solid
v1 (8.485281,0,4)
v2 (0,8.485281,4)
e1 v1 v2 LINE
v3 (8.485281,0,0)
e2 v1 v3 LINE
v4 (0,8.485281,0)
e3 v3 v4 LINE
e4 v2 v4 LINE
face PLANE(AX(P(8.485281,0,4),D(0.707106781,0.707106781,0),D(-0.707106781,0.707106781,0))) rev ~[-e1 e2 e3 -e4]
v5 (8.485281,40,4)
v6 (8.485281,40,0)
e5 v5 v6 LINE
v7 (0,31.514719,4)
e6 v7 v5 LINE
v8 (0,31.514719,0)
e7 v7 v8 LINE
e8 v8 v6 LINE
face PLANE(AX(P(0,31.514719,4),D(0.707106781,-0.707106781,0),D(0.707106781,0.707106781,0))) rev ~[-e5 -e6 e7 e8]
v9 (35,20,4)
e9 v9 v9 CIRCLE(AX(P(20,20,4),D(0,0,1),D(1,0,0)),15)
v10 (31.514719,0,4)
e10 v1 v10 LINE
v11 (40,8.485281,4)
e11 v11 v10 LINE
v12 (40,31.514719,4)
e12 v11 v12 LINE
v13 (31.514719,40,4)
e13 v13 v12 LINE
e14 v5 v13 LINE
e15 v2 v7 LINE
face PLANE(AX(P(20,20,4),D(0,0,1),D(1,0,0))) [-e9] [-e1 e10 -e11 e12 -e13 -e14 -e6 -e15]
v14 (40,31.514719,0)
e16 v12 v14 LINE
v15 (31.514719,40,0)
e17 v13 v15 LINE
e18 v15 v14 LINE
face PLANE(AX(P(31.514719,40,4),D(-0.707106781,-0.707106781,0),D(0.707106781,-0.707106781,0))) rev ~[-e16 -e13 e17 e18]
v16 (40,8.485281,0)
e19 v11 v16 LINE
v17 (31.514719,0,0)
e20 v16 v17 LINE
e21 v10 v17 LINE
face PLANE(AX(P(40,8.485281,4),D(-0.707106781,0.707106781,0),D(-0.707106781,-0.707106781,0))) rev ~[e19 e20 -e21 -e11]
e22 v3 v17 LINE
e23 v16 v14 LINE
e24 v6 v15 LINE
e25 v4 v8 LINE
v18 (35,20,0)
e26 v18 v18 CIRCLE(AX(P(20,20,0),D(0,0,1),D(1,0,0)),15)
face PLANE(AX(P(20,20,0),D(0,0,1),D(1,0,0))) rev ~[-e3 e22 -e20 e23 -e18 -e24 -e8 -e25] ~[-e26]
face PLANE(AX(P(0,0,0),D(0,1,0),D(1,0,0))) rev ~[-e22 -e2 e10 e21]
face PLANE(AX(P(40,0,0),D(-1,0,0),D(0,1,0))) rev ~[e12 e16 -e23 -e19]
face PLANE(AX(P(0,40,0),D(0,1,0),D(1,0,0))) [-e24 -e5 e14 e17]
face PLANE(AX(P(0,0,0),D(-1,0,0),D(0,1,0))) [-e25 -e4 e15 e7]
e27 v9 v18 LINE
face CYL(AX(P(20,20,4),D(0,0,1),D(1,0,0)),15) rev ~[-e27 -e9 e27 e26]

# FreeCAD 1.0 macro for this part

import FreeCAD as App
import Part
import Sketcher
from FreeCAD import Vector
Q = App.Units.Quantity

doc = App.newDocument("Part")
body = doc.addObject("PartDesign::Body", "Body")

sketch1 = body.newObject("Sketcher::SketchObject", "Sketch")
sketch1.AttachmentSupport = (doc.getObject("XY_Plane"), [""])
sketch1.MapMode = "FlatFace"
sketch1.addGeometry([
    Part.LineSegment(Vector(0, 40, 0), Vector(0, 0, 0)),
    Part.LineSegment(Vector(0, 0, 0), Vector(40, 0, 0)),
    Part.LineSegment(Vector(40, 0, 0), Vector(40, 40, 0)),
    Part.LineSegment(Vector(40, 40, 0), Vector(0, 40, 0)),
], False)
sketch1.addConstraint([
    Sketcher.Constraint("Coincident", 0, 2, 1, 1),
    Sketcher.Constraint("Coincident", 1, 2, 2, 1),
    Sketcher.Constraint("Coincident", 2, 2, 3, 1),
    Sketcher.Constraint("Coincident", 3, 2, 0, 1),
    Sketcher.Constraint("Vertical", 0),
    Sketcher.Constraint("Horizontal", 1),
    Sketcher.Constraint("Vertical", 2),
    Sketcher.Constraint("Horizontal", 3),
    Sketcher.Constraint("Coincident", 0, 2, -1, 1),
    Sketcher.Constraint("Equal", 3, 0),
    Sketcher.Constraint("DistanceX", 1, 1, 1, 2, Q("40 mm")),
])
pad1 = body.newObject("PartDesign::Pad", "Pad")
pad1.Profile = sketch1
pad1.Length = 4

sketch2 = body.newObject("Sketcher::SketchObject", "Sketch001")
sketch2.AttachmentSupport = (doc.getObject("XY_Plane"), [""])
sketch2.MapMode = "FlatFace"
sketch2.AttachmentOffset = App.Placement(Vector(0, 0, 4), App.Rotation())
sketch2.addGeometry([
    Part.LineSegment(Vector(0, 40, 0), Vector(0, 32, 0)),
    Part.LineSegment(Vector(0, 32, 0), Vector(8, 40, 0)),
    Part.LineSegment(Vector(8, 40, 0), Vector(0, 40, 0)),
    Part.LineSegment(Vector(40, 40, 0), Vector(32, 40, 0)),
    Part.LineSegment(Vector(32, 40, 0), Vector(40, 32, 0)),
    Part.LineSegment(Vector(40, 32, 0), Vector(40, 40, 0)),
    Part.LineSegment(Vector(40, 8, 0), Vector(32, 0, 0)),
    Part.LineSegment(Vector(32, 0, 0), Vector(40, 0, 0)),
    Part.LineSegment(Vector(40, 0, 0), Vector(40, 8, 0)),
    Part.LineSegment(Vector(8, 0, 0), Vector(0, 8, 0)),
    Part.LineSegment(Vector(0, 8, 0), Vector(0, 0, 0)),
    Part.LineSegment(Vector(0, 0, 0), Vector(8, 0, 0)),
], False)
sketch2.addConstraint([
    Sketcher.Constraint("Coincident", 0, 2, 1, 1),
    Sketcher.Constraint("Coincident", 1, 2, 2, 1),
    Sketcher.Constraint("Coincident", 2, 2, 0, 1),
    Sketcher.Constraint("Coincident", 3, 2, 4, 1),
    Sketcher.Constraint("Coincident", 4, 2, 5, 1),
    Sketcher.Constraint("Coincident", 5, 2, 3, 1),
    Sketcher.Constraint("Coincident", 6, 2, 7, 1),
    Sketcher.Constraint("Coincident", 7, 2, 8, 1),
    Sketcher.Constraint("Coincident", 8, 2, 6, 1),
    Sketcher.Constraint("Coincident", 9, 2, 10, 1),
    Sketcher.Constraint("Coincident", 10, 2, 11, 1),
    Sketcher.Constraint("Coincident", 11, 2, 9, 1),
    Sketcher.Constraint("Vertical", 0),
    Sketcher.Constraint("Horizontal", 2),
    Sketcher.Constraint("Horizontal", 3),
    Sketcher.Constraint("Vertical", 5),
    Sketcher.Constraint("Horizontal", 7),
    Sketcher.Constraint("Vertical", 8),
    Sketcher.Constraint("Vertical", 10),
    Sketcher.Constraint("Horizontal", 11),
    Sketcher.Constraint("Coincident", 10, 2, -1, 1),
    Sketcher.Constraint("PointOnObject", 0, 2, -2),
    Sketcher.Constraint("PointOnObject", 6, 2, -1),
    Sketcher.Constraint("Perpendicular", 1, 4),
    Sketcher.Constraint("Perpendicular", 4, 6),
    Sketcher.Constraint("Perpendicular", 6, 9),
    Sketcher.Constraint("Horizontal", 2, 2, 3, 2),
    Sketcher.Constraint("Horizontal", 0, 2, 4, 2),
    Sketcher.Constraint("Horizontal", 8, 2, 9, 2),
    Sketcher.Constraint("Vertical", 3, 2, 6, 2),
    Sketcher.Constraint("Vertical", 5, 2, 7, 2),
    Sketcher.Constraint("Vertical", 1, 2, 11, 2),
    Sketcher.Constraint("Distance", 1, Q("11.999999 mm")),
    Sketcher.Constraint("DistanceY", -1, 1, 1, 2, Q("40 mm")),
    Sketcher.Constraint("DistanceX", -1, 1, 4, 2, Q("40 mm")),
])
pocket1 = body.newObject("PartDesign::Pocket", "Pocket")
pocket1.Profile = sketch2
pocket1.Length = 25

sketch3 = body.newObject("Sketcher::SketchObject", "Sketch002")
sketch3.AttachmentSupport = (doc.getObject("XY_Plane"), [""])
sketch3.MapMode = "FlatFace"
sketch3.AttachmentOffset = App.Placement(Vector(0, 0, 4), App.Rotation())
sketch3.addGeometry(Part.Circle(Vector(20, 20, 0), Vector(0, 0, 1), 15), False)
sketch3.addConstraint([
    Sketcher.Constraint("Diameter", 0, Q("30 mm")),
    Sketcher.Constraint("DistanceX", -1, 1, 0, 3, Q("20 mm")),
    Sketcher.Constraint("DistanceY", -1, 1, 0, 3, Q("20 mm")),
])
pocket2 = body.newObject("PartDesign::Pocket", "Pocket001")
pocket2.Profile = sketch3
pocket2.Length = 25

doc.recompute()
